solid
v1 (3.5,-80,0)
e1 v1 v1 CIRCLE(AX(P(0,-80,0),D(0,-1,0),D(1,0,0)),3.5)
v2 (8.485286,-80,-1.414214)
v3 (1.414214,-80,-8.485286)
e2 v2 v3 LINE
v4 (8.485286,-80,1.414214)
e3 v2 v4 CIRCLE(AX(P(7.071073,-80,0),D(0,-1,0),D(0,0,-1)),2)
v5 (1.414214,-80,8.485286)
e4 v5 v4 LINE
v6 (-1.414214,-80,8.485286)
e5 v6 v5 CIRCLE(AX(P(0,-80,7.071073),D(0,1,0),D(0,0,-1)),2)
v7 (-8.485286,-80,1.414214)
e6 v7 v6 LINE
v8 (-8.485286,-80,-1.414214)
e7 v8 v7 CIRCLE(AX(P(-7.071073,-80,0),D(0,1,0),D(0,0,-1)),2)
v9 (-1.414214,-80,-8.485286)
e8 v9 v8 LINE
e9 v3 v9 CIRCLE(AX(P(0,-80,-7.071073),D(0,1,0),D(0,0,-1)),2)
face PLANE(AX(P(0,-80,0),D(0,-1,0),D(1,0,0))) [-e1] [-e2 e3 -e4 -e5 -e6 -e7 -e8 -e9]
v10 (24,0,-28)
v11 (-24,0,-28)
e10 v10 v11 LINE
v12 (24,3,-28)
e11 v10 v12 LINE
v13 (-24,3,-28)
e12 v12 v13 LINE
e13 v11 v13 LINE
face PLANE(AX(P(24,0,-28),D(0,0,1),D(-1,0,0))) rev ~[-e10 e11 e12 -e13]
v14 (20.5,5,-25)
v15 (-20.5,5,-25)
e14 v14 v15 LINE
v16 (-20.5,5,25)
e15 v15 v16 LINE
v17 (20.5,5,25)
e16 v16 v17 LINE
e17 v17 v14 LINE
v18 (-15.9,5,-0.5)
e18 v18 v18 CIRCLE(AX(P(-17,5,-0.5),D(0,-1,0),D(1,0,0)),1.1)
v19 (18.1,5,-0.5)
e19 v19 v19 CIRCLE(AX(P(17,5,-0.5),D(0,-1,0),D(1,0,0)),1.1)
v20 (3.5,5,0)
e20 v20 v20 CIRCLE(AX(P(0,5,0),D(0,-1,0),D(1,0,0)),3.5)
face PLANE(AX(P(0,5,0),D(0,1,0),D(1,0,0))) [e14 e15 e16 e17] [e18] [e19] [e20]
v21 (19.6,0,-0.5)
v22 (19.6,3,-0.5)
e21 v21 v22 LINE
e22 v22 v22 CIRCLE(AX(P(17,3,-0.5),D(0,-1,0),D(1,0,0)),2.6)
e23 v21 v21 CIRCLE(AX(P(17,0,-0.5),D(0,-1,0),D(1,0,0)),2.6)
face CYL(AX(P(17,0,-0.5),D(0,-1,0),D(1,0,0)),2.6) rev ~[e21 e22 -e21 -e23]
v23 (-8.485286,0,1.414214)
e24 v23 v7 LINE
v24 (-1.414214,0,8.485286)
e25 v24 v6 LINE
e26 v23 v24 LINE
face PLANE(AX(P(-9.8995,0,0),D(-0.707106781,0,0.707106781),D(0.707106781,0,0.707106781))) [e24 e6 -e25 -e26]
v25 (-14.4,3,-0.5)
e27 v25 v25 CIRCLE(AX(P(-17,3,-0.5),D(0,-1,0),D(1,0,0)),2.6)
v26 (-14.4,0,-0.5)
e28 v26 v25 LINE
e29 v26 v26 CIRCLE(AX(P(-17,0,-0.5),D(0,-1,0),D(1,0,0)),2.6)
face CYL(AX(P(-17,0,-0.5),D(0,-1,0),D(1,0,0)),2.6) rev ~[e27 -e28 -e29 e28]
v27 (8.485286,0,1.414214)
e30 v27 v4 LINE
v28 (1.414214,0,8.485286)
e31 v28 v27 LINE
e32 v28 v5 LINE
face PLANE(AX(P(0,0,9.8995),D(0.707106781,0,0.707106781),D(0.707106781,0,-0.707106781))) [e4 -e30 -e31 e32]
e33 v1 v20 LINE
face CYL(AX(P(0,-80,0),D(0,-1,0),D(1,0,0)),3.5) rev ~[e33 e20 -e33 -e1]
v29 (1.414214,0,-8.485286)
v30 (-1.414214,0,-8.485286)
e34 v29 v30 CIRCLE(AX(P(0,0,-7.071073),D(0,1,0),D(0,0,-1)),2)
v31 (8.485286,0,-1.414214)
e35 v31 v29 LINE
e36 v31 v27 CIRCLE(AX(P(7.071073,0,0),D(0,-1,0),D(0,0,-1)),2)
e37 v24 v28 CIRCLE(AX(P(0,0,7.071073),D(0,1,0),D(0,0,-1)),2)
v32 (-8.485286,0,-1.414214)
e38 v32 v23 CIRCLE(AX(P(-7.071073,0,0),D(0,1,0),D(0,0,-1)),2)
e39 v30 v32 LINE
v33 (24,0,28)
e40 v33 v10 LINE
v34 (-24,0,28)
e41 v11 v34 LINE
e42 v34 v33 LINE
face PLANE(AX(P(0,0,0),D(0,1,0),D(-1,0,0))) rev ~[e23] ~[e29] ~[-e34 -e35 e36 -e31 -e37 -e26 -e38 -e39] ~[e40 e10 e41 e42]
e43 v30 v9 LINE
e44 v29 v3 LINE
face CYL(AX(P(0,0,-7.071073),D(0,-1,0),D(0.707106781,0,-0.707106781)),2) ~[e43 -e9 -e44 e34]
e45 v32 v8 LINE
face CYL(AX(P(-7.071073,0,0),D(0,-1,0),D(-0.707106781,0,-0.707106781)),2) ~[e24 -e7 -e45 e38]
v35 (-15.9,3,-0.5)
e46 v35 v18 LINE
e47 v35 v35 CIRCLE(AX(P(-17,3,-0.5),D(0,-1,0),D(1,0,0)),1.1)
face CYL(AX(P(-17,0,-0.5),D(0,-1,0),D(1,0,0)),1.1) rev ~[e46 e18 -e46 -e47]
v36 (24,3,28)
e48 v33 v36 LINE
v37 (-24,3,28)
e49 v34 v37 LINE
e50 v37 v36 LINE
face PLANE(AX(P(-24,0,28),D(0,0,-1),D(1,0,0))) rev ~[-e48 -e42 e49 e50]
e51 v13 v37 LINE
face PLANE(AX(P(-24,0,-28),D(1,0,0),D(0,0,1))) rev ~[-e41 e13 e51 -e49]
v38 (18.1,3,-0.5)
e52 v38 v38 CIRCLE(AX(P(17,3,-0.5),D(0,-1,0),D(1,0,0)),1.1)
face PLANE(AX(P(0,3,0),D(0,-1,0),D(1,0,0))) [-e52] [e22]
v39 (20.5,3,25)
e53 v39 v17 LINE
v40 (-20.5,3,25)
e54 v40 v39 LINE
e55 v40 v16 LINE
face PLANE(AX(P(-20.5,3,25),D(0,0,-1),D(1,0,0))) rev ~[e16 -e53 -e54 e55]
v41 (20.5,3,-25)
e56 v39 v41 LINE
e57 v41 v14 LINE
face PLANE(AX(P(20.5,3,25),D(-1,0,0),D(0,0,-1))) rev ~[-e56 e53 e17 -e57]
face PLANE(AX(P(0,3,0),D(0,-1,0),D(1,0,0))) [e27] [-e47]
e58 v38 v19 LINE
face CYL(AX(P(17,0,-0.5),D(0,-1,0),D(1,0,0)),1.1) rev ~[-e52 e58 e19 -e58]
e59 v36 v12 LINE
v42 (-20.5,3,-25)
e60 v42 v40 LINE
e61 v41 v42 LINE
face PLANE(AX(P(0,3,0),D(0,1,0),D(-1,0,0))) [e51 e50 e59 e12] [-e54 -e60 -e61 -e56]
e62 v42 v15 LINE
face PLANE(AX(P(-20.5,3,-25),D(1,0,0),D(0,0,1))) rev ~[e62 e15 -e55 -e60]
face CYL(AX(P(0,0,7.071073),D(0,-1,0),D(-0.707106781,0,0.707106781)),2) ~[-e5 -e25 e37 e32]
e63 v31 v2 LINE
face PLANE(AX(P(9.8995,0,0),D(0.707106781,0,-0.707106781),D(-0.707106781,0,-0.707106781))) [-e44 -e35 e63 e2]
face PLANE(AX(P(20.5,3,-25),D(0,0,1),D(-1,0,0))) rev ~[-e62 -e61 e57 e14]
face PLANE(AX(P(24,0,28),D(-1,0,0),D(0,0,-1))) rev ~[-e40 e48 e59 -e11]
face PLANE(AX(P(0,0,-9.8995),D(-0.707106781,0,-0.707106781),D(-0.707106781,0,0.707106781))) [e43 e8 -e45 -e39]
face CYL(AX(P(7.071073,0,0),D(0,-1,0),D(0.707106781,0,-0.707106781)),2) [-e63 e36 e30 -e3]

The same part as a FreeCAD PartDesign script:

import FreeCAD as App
import Part
import Sketcher


def edges_at(feature, points):
    """Names of the edges that pass closest to the given points."""
    edges = feature.Shape.Edges
    near = lambda p: min(range(len(edges)), key=lambda i: edges[i].distToShape(Part.Vertex(*p))[0])
    return sorted({f"Edge{near(p) + 1}" for p in points})

doc = App.newDocument("Part")
body = doc.addObject("PartDesign::Body", "Body")

# Sketch on XZ plane
sketch1 = body.newObject("Sketcher::SketchObject", "Sketch")
sketch1.AttachmentSupport = (doc.getObject("XZ_Plane"), [""])
sketch1.MapMode = "FlatFace"
sketch1.addGeometry([
    Part.LineSegment(App.Vector(-24, -28, 0), App.Vector(-24, 28, 0)),
    Part.LineSegment(App.Vector(-24, 28, 0), App.Vector(24, 28, 0)),
    Part.LineSegment(App.Vector(24, 28, 0), App.Vector(24, -28, 0)),
    Part.LineSegment(App.Vector(24, -28, 0), App.Vector(-24, -28, 0)),
], False)
sketch1.addConstraint([
    Sketcher.Constraint("Coincident", 0, 2, 1, 1),
    Sketcher.Constraint("Coincident", 1, 2, 2, 1),
    Sketcher.Constraint("Coincident", 2, 2, 3, 1),
    Sketcher.Constraint("Coincident", 3, 2, 0, 1),
    Sketcher.Constraint("Vertical", 0),
    Sketcher.Constraint("Horizontal", 1),
    Sketcher.Constraint("Vertical", 2),
    Sketcher.Constraint("Horizontal", 3),
    Sketcher.Constraint("Symmetric", 0, 2, 2, 2, -1, 1),
    Sketcher.Constraint("DistanceX", 1, 1, 1, 2, 48.0),
    Sketcher.Constraint("DistanceY", 0, 1, 0, 2, 56.0),
])
pad1 = body.newObject("PartDesign::Pad", "Pad")
pad1.Profile = sketch1
pad1.Length = 3
pad1.Reversed = True

# Sketch on XZ plane
sketch2 = body.newObject("Sketcher::SketchObject", "Sketch001")
sketch2.AttachmentSupport = (doc.getObject("XZ_Plane"), [""])
sketch2.MapMode = "FlatFace"
sketch2.AttachmentOffset = App.Placement(App.Vector(0, 0, -3), App.Rotation())
sketch2.addGeometry([
    Part.LineSegment(App.Vector(-20, -25, 0), App.Vector(-20, 25, 0)),
    Part.LineSegment(App.Vector(-20, 25, 0), App.Vector(20, 25, 0)),
    Part.LineSegment(App.Vector(20, 25, 0), App.Vector(20, -25, 0)),
    Part.LineSegment(App.Vector(20, -25, 0), App.Vector(-20, -25, 0)),
], False)
sketch2.addConstraint([
    Sketcher.Constraint("Coincident", 0, 2, 1, 1),
    Sketcher.Constraint("Coincident", 1, 2, 2, 1),
    Sketcher.Constraint("Coincident", 2, 2, 3, 1),
    Sketcher.Constraint("Coincident", 3, 2, 0, 1),
    Sketcher.Constraint("Vertical", 0),
    Sketcher.Constraint("Horizontal", 1),
    Sketcher.Constraint("Vertical", 2),
    Sketcher.Constraint("Horizontal", 3),
    Sketcher.Constraint("Symmetric", 0, 2, 2, 2, -1, 1),
    Sketcher.Constraint("DistanceX", 1, 1, 1, 2, 41.0),
    Sketcher.Constraint("DistanceY", 0, 1, 0, 2, 50.0),
])
pad2 = body.newObject("PartDesign::Pad", "Pad001")
pad2.Profile = sketch2
pad2.Length = 2
pad2.Reversed = True

# Sketch on XZ plane
sketch3 = body.newObject("Sketcher::SketchObject", "Sketch002")
sketch3.AttachmentSupport = (doc.getObject("XZ_Plane"), [""])
sketch3.MapMode = "FlatFace"
sketch3.addGeometry([
    Part.LineSegment(App.Vector(0, -10, 0), App.Vector(10, 0, 0)),
    Part.LineSegment(App.Vector(10, 0, 0), App.Vector(0, 10, 0)),
    Part.LineSegment(App.Vector(0, 10, 0), App.Vector(-10, 0, 0)),
    Part.LineSegment(App.Vector(-10, 0, 0), App.Vector(0, -10, 0)),
], False)
sketch3.addConstraint([
    Sketcher.Constraint("Coincident", 0, 2, 1, 1),
    Sketcher.Constraint("Coincident", 1, 2, 2, 1),
    Sketcher.Constraint("Coincident", 2, 2, 3, 1),
    Sketcher.Constraint("Coincident", 3, 2, 0, 1),
    Sketcher.Constraint("Symmetric", 0, 2, 2, 2, -1, 1),
    Sketcher.Constraint("Symmetric", 1, 2, 3, 2, -1, 1),
    Sketcher.Constraint("PointOnObject", 0, 2, -1),
    Sketcher.Constraint("PointOnObject", 1, 2, -2),
    Sketcher.Constraint("Perpendicular", 0, 1),
    Sketcher.Constraint("Distance", 0, 14.0),
])
pad3 = body.newObject("PartDesign::Pad", "Pad002")
pad3.Profile = sketch3
pad3.Length = 80

# Sketch on XZ plane
sketch4 = body.newObject("Sketcher::SketchObject", "Sketch003")
sketch4.AttachmentSupport = (doc.getObject("XZ_Plane"), [""])
sketch4.MapMode = "FlatFace"
sketch4.AttachmentOffset = App.Placement(App.Vector(0, 0, 80), App.Rotation())
sketch4.addGeometry(Part.Circle(App.Vector(0, 0, 0), App.Vector(0, 0, 1), 3.5), False)
sketch4.addConstraint([
    Sketcher.Constraint("Coincident", 0, 3, -1, 1),
    Sketcher.Constraint("Diameter", 0, 7.0),
])
pocket1 = body.newObject("PartDesign::Pocket", "Pocket")
pocket1.Profile = sketch4
pocket1.Length = 85
doc.recompute()

fillet = body.newObject("PartDesign::Fillet", "Fillet")
fillet.Base = (pocket1, edges_at(pocket1, [
    (-9.899, -40, 0),
    (0, -40, -9.899),
    (9.899, -40, 0),
    (0, -40, 9.899),
]))
fillet.Radius = 2

# Sketch on XZ plane
sketch5 = body.newObject("Sketcher::SketchObject", "Sketch004")
sketch5.AttachmentSupport = (doc.getObject("XZ_Plane"), [""])
sketch5.MapMode = "FlatFace"
sketch5.addGeometry([
    Part.Circle(App.Vector(-17, -0.5, 0), App.Vector(0, 0, 1), 1.1),
    Part.Circle(App.Vector(17, -0.5, 0), App.Vector(0, 0, 1), 1.1),
], False)
sketch5.addConstraint([
    Sketcher.Constraint("Equal", 0, 1),
    Sketcher.Constraint("Symmetric", 0, 3, 1, 3, -2),
    Sketcher.Constraint("Diameter", 0, 2.2),
    Sketcher.Constraint("DistanceX", 0, 3, -1, 1, 17.0),
    Sketcher.Constraint("DistanceY", 0, 3, -1, 1, 0.5),
])
pocket2 = body.newObject("PartDesign::Pocket", "Pocket001")
pocket2.Profile = sketch5
pocket2.Length = 5

# Sketch on XZ plane
sketch6 = body.newObject("Sketcher::SketchObject", "Sketch005")
sketch6.AttachmentSupport = (doc.getObject("XZ_Plane"), [""])
sketch6.MapMode = "FlatFace"
sketch6.addGeometry([
    Part.Circle(App.Vector(-17, -0.5, 0), App.Vector(0, 0, 1), 2.6),
    Part.Circle(App.Vector(-17, -0.5, 0), App.Vector(0, 0, 1), 1.1),
    Part.Circle(App.Vector(17, -0.5, 0), App.Vector(0, 0, 1), 2.6),
    Part.Circle(App.Vector(17, -0.5, 0), App.Vector(0, 0, 1), 1.1),
], False)
sketch6.addConstraint([
    Sketcher.Constraint("Coincident", 1, 3, 0, 3),
    Sketcher.Constraint("Coincident", 3, 3, 2, 3),
    Sketcher.Constraint("Equal", 0, 2),
    Sketcher.Constraint("Equal", 1, 3),
    Sketcher.Constraint("Symmetric", 0, 3, 2, 3, -2),
    Sketcher.Constraint("Diameter", 0, 5.2),
    Sketcher.Constraint("Diameter", 1, 2.2),
    Sketcher.Constraint("DistanceX", 0, 3, -1, 1, 17.0),
    Sketcher.Constraint("DistanceY", 0, 3, -1, 1, 0.5),
])
pocket3 = body.newObject("PartDesign::Pocket", "Pocket002")
pocket3.Profile = sketch6
pocket3.Length = 3

doc.recompute()
